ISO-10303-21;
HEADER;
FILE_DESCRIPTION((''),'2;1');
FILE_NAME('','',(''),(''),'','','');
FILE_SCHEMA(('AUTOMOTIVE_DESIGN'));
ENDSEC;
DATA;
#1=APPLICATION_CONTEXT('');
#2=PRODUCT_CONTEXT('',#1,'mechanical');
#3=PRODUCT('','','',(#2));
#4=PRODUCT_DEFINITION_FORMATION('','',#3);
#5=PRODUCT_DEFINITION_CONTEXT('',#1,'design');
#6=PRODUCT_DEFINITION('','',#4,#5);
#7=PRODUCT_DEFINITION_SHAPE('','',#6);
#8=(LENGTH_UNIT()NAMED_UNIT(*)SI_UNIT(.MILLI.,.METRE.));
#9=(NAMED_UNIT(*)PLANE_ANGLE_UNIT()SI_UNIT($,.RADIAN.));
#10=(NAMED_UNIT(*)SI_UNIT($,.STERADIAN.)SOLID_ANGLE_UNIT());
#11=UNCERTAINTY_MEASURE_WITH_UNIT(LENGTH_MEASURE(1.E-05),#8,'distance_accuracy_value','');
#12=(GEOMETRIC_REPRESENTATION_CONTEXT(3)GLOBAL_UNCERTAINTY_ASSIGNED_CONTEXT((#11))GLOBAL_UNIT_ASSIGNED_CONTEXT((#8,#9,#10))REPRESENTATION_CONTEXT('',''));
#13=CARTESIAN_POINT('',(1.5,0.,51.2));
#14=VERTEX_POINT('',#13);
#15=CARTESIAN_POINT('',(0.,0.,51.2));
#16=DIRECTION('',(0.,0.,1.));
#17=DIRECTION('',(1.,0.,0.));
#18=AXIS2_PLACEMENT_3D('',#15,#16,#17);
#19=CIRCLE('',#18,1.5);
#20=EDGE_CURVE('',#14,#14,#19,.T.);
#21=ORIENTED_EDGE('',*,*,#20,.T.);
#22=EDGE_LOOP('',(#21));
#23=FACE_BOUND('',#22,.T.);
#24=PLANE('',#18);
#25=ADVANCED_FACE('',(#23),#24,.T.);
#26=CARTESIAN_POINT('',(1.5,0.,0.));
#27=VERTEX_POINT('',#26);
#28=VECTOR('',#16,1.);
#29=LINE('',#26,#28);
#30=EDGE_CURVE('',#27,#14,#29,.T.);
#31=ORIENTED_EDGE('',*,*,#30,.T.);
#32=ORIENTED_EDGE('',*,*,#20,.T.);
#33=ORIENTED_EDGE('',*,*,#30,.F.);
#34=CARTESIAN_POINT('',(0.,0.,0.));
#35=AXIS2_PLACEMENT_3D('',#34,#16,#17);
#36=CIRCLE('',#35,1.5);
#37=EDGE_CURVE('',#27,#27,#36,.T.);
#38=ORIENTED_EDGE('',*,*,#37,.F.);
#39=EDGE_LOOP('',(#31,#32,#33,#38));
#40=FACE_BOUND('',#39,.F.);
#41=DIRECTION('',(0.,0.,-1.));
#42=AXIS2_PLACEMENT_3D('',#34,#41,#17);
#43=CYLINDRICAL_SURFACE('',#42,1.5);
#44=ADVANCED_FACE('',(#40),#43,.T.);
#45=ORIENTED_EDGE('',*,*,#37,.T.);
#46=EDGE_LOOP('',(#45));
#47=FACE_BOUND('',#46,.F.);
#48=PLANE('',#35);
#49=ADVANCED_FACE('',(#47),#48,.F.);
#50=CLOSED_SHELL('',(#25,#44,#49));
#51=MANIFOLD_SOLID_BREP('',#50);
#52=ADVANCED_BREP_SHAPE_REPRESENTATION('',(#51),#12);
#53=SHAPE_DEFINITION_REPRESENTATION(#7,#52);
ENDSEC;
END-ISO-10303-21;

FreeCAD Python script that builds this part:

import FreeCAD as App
import Part
import Sketcher
Q = App.Units.Quantity

doc = App.newDocument("Part")
body = doc.addObject("PartDesign::Body", "Body")

sketch1 = body.newObject("Sketcher::SketchObject", "Sketch")
sketch1.AttachmentSupport = (doc.getObject("XY_Plane"), [""])
sketch1.MapMode = "FlatFace"
sketch1.addGeometry(Part.Circle(App.Vector(0, 0, 0), App.Vector(0, 0, 1), 1.5), False)
sketch1.addConstraint([
    Sketcher.Constraint("Coincident", 0, 3, -1, 1),
    Sketcher.Constraint("Diameter", 0, Q("3 mm")),
])
pad1 = body.newObject("PartDesign::Pad", "Pad")
pad1.Profile = sketch1
pad1.Length = 51.2

doc.recompute()
